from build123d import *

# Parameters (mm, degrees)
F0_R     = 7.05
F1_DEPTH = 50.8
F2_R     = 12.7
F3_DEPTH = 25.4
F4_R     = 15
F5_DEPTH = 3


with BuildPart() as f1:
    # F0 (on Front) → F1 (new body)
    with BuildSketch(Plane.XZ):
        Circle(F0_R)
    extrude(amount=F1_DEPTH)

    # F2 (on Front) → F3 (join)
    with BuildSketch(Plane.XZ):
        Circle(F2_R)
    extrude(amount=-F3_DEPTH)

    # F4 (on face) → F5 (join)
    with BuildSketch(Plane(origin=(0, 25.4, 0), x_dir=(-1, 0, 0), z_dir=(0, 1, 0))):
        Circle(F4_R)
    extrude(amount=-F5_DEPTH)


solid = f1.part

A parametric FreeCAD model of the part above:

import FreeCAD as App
import Part
import Sketcher
from FreeCAD import Vector
Q = App.Units.Quantity

doc = App.newDocument("Part")
body = doc.addObject("PartDesign::Body", "Body")

# Sketch on XZ plane
sketch1 = body.newObject("Sketcher::SketchObject", "Sketch")
sketch1.AttachmentSupport = (doc.getObject("XZ_Plane"), [""])
sketch1.MapMode = "FlatFace"
sketch1.addGeometry(Part.Circle(Vector(0, 0, 0), Vector(0, 0, 1), 7), False)
sketch1.addConstraint([
    Sketcher.Constraint("Coincident", 0, 3, -1, 1),
    Sketcher.Constraint("Diameter", 0, Q("14.1 mm")),
])
pad1 = body.newObject("PartDesign::Pad", "Pad")
pad1.Profile = sketch1
pad1.Length = 50.8

# Sketch on XZ plane
sketch2 = body.newObject("Sketcher::SketchObject", "Sketch001")
sketch2.AttachmentSupport = (doc.getObject("XZ_Plane"), [""])
sketch2.MapMode = "FlatFace"
sketch2.addGeometry(Part.Circle(Vector(0, 0, 0), Vector(0, 0, 1), 13), False)
sketch2.addConstraint([
    Sketcher.Constraint("Coincident", 0, 3, -1, 1),
    Sketcher.Constraint("Diameter", 0, Q("25.4 mm")),
])
pad2 = body.newObject("PartDesign::Pad", "Pad001")
pad2.Profile = sketch2
pad2.Length = 25.4
pad2.Reversed = True

# Sketch on XZ plane
sketch3 = body.newObject("Sketcher::SketchObject", "Sketch002")
sketch3.AttachmentSupport = (doc.getObject("XZ_Plane"), [""])
sketch3.MapMode = "FlatFace"
sketch3.AttachmentOffset = App.Placement(Vector(0, 0, -25.4), App.Rotation())
sketch3.addGeometry(Part.Circle(Vector(0, 0, 0), Vector(0, 0, 1), 15), False)
sketch3.addConstraint([
    Sketcher.Constraint("Coincident", 0, 3, -1, 1),
    Sketcher.Constraint("Diameter", 0, Q("30 mm")),
])
pad3 = body.newObject("PartDesign::Pad", "Pad002")
pad3.Profile = sketch3
pad3.Length = 3

doc.recompute()
